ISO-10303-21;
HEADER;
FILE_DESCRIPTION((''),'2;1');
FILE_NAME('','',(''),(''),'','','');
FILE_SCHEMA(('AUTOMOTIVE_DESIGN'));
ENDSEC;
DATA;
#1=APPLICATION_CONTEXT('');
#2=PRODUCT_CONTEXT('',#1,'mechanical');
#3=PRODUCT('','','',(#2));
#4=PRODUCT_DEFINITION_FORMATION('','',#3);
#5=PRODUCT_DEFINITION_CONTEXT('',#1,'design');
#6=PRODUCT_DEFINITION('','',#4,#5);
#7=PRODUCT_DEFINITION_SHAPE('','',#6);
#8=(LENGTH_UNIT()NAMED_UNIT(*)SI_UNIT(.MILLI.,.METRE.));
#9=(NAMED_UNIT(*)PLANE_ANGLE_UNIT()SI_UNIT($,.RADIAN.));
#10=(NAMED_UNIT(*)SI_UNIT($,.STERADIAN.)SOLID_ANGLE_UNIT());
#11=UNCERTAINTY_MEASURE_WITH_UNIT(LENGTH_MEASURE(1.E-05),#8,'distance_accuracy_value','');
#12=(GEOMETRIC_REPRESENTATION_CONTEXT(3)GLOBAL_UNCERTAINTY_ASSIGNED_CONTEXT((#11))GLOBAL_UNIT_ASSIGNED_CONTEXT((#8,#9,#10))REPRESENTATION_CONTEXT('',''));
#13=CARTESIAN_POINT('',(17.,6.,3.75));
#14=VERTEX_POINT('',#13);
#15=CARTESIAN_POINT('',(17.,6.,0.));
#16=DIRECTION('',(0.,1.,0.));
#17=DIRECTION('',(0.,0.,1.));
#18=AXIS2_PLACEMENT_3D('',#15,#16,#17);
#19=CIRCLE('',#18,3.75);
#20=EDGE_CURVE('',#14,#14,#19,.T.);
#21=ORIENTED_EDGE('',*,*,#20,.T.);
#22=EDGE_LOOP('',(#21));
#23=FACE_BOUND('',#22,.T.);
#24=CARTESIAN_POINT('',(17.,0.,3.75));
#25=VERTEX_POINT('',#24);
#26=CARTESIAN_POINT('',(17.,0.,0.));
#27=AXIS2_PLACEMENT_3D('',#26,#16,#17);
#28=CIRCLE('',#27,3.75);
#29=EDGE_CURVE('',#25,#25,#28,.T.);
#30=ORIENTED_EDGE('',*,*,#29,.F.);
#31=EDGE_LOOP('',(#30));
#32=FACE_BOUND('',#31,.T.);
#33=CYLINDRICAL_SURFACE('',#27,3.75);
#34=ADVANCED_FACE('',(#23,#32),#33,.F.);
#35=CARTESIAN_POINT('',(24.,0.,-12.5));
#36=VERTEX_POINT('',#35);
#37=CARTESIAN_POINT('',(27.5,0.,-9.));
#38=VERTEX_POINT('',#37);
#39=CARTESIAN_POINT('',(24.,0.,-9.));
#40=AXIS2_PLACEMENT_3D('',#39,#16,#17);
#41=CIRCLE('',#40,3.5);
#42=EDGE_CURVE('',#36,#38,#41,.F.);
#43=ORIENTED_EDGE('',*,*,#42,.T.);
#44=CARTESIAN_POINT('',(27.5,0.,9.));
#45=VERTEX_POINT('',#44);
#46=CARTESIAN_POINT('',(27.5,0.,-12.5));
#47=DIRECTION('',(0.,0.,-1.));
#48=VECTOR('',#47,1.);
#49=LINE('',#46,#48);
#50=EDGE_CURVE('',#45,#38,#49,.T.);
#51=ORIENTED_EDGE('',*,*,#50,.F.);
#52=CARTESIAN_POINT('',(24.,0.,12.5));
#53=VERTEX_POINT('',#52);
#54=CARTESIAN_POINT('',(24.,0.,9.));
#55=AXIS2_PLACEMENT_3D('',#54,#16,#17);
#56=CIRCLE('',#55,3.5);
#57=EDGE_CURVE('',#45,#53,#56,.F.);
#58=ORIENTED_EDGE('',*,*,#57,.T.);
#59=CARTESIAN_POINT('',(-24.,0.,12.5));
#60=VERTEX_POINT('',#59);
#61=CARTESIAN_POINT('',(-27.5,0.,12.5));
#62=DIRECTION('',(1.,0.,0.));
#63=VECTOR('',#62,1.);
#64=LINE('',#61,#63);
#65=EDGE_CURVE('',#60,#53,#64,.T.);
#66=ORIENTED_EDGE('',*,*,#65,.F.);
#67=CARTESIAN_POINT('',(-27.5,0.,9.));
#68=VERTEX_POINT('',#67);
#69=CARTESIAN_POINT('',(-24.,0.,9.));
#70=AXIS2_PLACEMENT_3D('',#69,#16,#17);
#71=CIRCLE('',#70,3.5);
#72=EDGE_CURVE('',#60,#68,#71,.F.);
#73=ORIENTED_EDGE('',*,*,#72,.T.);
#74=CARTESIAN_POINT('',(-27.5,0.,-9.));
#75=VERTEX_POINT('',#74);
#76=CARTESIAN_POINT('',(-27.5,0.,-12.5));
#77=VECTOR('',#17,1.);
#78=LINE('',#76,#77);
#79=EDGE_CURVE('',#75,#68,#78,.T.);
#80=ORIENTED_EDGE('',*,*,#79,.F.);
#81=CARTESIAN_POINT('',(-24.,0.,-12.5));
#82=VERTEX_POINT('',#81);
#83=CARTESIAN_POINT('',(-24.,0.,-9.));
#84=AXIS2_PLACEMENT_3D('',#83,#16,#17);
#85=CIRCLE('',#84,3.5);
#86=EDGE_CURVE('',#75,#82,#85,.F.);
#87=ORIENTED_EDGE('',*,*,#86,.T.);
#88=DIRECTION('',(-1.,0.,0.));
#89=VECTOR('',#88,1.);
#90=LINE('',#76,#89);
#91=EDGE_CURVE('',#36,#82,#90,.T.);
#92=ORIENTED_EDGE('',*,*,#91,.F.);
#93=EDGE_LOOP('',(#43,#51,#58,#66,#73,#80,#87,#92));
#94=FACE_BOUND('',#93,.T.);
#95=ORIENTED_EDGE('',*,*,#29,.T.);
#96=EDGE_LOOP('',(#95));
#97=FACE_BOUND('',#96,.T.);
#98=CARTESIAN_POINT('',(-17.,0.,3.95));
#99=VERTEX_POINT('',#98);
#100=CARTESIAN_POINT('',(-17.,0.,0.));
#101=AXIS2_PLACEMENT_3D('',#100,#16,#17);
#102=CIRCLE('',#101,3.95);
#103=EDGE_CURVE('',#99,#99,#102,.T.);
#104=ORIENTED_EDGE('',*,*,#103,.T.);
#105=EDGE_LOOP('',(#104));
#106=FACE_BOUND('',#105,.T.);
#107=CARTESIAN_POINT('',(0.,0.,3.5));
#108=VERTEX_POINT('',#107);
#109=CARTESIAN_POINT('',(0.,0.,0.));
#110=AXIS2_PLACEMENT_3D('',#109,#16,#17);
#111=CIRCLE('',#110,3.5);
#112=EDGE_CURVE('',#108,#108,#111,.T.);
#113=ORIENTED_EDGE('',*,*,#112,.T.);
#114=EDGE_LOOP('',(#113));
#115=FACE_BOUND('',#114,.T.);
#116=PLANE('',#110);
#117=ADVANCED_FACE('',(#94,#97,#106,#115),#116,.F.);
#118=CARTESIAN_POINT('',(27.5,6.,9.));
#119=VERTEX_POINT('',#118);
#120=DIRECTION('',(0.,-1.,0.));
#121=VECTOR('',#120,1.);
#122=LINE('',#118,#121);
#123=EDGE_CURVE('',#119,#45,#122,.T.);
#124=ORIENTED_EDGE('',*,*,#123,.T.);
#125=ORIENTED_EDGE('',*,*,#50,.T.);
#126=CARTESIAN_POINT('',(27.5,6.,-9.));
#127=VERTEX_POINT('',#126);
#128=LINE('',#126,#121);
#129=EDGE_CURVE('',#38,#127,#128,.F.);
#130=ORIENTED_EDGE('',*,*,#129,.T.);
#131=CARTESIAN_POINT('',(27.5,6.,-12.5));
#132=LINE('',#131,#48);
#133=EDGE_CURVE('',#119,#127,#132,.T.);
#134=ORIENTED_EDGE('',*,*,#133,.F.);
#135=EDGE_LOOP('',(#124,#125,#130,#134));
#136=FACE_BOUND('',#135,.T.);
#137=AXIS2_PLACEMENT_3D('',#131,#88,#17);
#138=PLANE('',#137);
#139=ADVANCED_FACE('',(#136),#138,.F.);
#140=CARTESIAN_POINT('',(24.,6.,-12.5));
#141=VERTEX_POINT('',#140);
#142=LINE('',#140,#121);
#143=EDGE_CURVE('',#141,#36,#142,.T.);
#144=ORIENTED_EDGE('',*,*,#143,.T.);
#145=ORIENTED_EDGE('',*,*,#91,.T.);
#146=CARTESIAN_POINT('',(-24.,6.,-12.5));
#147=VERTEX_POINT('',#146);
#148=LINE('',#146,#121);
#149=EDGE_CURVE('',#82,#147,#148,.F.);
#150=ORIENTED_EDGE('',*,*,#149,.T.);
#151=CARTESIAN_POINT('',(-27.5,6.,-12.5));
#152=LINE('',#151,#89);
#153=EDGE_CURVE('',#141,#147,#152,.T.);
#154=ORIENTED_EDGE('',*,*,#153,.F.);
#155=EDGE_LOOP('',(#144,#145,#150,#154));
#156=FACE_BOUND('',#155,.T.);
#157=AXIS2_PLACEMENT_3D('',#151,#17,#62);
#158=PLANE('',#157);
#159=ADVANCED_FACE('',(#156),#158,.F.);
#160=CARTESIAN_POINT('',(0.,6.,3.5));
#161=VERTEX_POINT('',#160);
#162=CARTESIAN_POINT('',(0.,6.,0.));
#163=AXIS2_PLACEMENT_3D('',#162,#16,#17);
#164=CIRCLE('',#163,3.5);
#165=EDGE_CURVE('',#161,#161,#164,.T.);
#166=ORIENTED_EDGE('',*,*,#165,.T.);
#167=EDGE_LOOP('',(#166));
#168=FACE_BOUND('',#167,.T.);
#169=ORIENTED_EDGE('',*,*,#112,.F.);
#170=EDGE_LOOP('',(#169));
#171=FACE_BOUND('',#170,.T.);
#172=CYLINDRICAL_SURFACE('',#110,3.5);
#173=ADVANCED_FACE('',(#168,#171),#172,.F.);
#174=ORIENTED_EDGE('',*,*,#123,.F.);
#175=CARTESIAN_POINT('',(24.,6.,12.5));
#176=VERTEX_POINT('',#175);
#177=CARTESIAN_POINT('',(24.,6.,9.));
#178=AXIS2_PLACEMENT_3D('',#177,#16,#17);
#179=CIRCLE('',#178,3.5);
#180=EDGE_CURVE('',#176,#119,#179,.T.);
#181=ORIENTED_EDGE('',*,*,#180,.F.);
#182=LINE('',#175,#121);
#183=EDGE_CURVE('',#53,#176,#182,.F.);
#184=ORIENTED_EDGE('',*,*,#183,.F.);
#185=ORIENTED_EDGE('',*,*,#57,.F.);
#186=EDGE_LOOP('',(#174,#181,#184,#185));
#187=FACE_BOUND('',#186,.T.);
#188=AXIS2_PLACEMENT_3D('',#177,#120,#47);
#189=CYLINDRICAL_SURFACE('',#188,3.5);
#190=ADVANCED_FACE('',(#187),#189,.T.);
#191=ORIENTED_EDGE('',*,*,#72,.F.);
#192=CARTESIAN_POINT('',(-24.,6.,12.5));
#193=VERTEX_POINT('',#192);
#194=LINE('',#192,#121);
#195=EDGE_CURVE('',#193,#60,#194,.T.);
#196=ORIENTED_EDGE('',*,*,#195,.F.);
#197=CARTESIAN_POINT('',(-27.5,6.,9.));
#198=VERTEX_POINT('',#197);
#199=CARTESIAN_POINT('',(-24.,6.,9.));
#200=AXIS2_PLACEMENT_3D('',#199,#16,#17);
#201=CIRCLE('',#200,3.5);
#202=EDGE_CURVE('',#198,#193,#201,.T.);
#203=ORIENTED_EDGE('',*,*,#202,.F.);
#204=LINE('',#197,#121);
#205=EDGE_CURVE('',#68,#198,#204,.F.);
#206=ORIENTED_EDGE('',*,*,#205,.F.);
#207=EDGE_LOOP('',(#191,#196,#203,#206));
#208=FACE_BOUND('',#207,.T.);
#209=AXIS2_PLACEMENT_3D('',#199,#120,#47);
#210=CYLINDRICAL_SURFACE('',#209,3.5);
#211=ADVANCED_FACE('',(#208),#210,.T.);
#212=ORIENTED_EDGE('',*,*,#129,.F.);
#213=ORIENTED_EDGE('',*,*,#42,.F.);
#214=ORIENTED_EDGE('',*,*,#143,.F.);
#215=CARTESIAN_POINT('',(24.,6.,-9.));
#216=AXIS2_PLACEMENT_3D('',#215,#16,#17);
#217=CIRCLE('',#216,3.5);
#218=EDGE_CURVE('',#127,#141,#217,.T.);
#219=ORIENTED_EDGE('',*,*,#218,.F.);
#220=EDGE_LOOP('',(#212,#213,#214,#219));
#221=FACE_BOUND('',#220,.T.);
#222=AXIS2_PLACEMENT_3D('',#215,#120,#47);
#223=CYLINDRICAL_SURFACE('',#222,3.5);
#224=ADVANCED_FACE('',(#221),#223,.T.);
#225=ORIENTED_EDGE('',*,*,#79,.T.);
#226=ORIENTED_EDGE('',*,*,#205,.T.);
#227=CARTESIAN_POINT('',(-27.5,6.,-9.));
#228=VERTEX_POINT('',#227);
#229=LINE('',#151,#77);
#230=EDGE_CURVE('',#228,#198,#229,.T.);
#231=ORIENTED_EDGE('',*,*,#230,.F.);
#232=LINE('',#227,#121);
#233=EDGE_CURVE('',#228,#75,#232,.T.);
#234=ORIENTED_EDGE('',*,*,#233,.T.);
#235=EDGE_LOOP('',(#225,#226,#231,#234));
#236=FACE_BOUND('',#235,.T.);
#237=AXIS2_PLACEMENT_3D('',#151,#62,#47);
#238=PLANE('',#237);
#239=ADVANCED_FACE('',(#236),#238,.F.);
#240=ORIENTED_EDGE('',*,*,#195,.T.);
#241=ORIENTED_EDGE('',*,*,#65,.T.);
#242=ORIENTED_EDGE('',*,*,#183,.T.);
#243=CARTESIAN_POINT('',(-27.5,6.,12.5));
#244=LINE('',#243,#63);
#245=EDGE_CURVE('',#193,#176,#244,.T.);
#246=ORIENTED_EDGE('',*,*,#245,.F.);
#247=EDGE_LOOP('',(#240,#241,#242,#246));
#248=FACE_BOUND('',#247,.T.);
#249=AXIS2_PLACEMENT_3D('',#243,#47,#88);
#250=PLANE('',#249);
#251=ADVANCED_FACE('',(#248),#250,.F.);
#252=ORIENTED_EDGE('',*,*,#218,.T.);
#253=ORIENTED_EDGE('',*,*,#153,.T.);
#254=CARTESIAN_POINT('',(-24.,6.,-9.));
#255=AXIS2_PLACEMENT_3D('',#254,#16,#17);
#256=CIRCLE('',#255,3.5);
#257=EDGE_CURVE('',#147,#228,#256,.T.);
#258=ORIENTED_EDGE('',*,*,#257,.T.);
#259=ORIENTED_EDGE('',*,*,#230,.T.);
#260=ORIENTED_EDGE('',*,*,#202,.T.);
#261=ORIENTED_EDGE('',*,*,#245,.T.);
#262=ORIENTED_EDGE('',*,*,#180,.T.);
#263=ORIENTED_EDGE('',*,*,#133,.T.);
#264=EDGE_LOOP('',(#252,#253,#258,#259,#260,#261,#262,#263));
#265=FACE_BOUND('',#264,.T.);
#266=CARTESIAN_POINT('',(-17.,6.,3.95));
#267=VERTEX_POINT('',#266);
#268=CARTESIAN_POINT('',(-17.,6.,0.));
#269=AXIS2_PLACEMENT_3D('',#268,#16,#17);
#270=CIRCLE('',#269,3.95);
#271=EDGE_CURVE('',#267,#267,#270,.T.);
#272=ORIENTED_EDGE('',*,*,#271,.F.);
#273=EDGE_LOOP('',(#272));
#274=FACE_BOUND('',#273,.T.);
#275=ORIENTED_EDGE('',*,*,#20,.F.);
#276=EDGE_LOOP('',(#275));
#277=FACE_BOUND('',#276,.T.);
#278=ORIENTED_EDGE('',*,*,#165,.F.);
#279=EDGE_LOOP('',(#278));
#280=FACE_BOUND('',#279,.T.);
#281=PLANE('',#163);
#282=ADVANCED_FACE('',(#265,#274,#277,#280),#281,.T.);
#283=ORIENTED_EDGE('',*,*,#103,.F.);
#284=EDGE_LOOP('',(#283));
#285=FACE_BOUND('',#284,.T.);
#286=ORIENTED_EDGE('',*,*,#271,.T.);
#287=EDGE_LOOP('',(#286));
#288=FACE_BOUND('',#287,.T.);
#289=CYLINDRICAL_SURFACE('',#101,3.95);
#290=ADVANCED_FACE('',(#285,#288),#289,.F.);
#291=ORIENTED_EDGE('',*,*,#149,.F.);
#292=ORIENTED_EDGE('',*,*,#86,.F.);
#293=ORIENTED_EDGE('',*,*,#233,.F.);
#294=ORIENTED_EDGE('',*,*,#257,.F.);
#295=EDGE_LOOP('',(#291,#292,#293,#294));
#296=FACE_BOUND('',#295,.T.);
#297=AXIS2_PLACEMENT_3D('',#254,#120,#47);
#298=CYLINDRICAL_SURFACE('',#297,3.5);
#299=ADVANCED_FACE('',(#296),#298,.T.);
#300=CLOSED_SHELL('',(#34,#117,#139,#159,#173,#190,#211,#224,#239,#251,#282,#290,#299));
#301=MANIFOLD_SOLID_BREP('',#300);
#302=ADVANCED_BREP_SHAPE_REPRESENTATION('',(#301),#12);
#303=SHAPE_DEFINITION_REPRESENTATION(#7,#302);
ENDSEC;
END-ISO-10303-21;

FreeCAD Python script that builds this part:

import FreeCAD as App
import Part
import Sketcher
Q = App.Units.Quantity


def edges_at(feature, points):
    """Names of the edges that pass closest to the given points."""
    edges = feature.Shape.Edges
    near = lambda p: min(range(len(edges)), key=lambda i: edges[i].distToShape(Part.Vertex(*p))[0])
    return sorted({f"Edge{near(p) + 1}" for p in points})

doc = App.newDocument("Part")
body = doc.addObject("PartDesign::Body", "Body")

# Sketch on XZ plane
sketch1 = body.newObject("Sketcher::SketchObject", "Sketch")
sketch1.AttachmentSupport = (doc.getObject("XZ_Plane"), [""])
sketch1.MapMode = "FlatFace"
sketch1.addGeometry(Part.LineSegment(App.Vector(-28, -12, 0), App.Vector(-28, 12, 0)), False)
sketch1.addGeometry(Part.LineSegment(App.Vector(-28, 12, 0), App.Vector(28, 12, 0)), False)
sketch1.addGeometry(Part.LineSegment(App.Vector(28, 12, 0), App.Vector(28, -12, 0)), False)
sketch1.addGeometry(Part.LineSegment(App.Vector(28, -12, 0), App.Vector(-28, -12, 0)), False)
sketch1.addConstraint(Sketcher.Constraint("Coincident", 0, 2, 1, 1))
sketch1.addConstraint(Sketcher.Constraint("Coincident", 1, 2, 2, 1))
sketch1.addConstraint(Sketcher.Constraint("Coincident", 2, 2, 3, 1))
sketch1.addConstraint(Sketcher.Constraint("Coincident", 3, 2, 0, 1))
sketch1.addConstraint(Sketcher.Constraint("Vertical", 0))
sketch1.addConstraint(Sketcher.Constraint("Horizontal", 1))
sketch1.addConstraint(Sketcher.Constraint("Vertical", 2))
sketch1.addConstraint(Sketcher.Constraint("Horizontal", 3))
sketch1.addConstraint(Sketcher.Constraint("Symmetric", 0, 2, 2, 2, -1, 1))
sketch1.addConstraint(Sketcher.Constraint("DistanceX", 1, 1, 1, 2, Q("55 mm")))
sketch1.addConstraint(Sketcher.Constraint("DistanceY", 0, 1, 0, 2, Q("25 mm")))
pad1 = body.newObject("PartDesign::Pad", "Pad")
pad1.Profile = sketch1
pad1.Length = 6
pad1.Reversed = True

# Sketch on XZ plane
sketch2 = body.newObject("Sketcher::SketchObject", "Sketch001")
sketch2.AttachmentSupport = (doc.getObject("XZ_Plane"), [""])
sketch2.MapMode = "FlatFace"
sketch2.AttachmentOffset = App.Placement(App.Vector(0, 0, -6), App.Rotation())
sketch2.addGeometry(Part.Circle(App.Vector(0, 0, 0), App.Vector(0, 0, 1), 3.5), False)
sketch2.addGeometry(Part.Circle(App.Vector(17, 0, 0), App.Vector(0, 0, 1), 3.8), False)
sketch2.addGeometry(Part.Circle(App.Vector(-17, 0, 0), App.Vector(0, 0, 1), 4), False)
sketch2.addConstraint(Sketcher.Constraint("Coincident", 0, 3, -1, 1))
sketch2.addConstraint(Sketcher.Constraint("Symmetric", 1, 3, 2, 3, -1, 1))
sketch2.addConstraint(Sketcher.Constraint("PointOnObject", 1, 3, -1))
sketch2.addConstraint(Sketcher.Constraint("Diameter", 0, Q("7 mm")))
sketch2.addConstraint(Sketcher.Constraint("Diameter", 1, Q("7.5 mm")))
sketch2.addConstraint(Sketcher.Constraint("Diameter", 2, Q("7.9 mm")))
sketch2.addConstraint(Sketcher.Constraint("DistanceX", -1, 1, 1, 3, Q("17 mm")))
pocket1 = body.newObject("PartDesign::Pocket", "Pocket")
pocket1.Profile = sketch2
pocket1.Length = 6
pocket1.Reversed = True
doc.recompute()

fillet = body.newObject("PartDesign::Fillet", "Fillet")
fillet.Base = (pocket1, edges_at(pocket1, [
    (27.5, 3, 12.5),
    (-27.5, 3, 12.5),
    (-27.5, 3, -12.5),
    (27.5, 3, -12.5),
]))
fillet.Radius = 3.5

doc.recompute()
